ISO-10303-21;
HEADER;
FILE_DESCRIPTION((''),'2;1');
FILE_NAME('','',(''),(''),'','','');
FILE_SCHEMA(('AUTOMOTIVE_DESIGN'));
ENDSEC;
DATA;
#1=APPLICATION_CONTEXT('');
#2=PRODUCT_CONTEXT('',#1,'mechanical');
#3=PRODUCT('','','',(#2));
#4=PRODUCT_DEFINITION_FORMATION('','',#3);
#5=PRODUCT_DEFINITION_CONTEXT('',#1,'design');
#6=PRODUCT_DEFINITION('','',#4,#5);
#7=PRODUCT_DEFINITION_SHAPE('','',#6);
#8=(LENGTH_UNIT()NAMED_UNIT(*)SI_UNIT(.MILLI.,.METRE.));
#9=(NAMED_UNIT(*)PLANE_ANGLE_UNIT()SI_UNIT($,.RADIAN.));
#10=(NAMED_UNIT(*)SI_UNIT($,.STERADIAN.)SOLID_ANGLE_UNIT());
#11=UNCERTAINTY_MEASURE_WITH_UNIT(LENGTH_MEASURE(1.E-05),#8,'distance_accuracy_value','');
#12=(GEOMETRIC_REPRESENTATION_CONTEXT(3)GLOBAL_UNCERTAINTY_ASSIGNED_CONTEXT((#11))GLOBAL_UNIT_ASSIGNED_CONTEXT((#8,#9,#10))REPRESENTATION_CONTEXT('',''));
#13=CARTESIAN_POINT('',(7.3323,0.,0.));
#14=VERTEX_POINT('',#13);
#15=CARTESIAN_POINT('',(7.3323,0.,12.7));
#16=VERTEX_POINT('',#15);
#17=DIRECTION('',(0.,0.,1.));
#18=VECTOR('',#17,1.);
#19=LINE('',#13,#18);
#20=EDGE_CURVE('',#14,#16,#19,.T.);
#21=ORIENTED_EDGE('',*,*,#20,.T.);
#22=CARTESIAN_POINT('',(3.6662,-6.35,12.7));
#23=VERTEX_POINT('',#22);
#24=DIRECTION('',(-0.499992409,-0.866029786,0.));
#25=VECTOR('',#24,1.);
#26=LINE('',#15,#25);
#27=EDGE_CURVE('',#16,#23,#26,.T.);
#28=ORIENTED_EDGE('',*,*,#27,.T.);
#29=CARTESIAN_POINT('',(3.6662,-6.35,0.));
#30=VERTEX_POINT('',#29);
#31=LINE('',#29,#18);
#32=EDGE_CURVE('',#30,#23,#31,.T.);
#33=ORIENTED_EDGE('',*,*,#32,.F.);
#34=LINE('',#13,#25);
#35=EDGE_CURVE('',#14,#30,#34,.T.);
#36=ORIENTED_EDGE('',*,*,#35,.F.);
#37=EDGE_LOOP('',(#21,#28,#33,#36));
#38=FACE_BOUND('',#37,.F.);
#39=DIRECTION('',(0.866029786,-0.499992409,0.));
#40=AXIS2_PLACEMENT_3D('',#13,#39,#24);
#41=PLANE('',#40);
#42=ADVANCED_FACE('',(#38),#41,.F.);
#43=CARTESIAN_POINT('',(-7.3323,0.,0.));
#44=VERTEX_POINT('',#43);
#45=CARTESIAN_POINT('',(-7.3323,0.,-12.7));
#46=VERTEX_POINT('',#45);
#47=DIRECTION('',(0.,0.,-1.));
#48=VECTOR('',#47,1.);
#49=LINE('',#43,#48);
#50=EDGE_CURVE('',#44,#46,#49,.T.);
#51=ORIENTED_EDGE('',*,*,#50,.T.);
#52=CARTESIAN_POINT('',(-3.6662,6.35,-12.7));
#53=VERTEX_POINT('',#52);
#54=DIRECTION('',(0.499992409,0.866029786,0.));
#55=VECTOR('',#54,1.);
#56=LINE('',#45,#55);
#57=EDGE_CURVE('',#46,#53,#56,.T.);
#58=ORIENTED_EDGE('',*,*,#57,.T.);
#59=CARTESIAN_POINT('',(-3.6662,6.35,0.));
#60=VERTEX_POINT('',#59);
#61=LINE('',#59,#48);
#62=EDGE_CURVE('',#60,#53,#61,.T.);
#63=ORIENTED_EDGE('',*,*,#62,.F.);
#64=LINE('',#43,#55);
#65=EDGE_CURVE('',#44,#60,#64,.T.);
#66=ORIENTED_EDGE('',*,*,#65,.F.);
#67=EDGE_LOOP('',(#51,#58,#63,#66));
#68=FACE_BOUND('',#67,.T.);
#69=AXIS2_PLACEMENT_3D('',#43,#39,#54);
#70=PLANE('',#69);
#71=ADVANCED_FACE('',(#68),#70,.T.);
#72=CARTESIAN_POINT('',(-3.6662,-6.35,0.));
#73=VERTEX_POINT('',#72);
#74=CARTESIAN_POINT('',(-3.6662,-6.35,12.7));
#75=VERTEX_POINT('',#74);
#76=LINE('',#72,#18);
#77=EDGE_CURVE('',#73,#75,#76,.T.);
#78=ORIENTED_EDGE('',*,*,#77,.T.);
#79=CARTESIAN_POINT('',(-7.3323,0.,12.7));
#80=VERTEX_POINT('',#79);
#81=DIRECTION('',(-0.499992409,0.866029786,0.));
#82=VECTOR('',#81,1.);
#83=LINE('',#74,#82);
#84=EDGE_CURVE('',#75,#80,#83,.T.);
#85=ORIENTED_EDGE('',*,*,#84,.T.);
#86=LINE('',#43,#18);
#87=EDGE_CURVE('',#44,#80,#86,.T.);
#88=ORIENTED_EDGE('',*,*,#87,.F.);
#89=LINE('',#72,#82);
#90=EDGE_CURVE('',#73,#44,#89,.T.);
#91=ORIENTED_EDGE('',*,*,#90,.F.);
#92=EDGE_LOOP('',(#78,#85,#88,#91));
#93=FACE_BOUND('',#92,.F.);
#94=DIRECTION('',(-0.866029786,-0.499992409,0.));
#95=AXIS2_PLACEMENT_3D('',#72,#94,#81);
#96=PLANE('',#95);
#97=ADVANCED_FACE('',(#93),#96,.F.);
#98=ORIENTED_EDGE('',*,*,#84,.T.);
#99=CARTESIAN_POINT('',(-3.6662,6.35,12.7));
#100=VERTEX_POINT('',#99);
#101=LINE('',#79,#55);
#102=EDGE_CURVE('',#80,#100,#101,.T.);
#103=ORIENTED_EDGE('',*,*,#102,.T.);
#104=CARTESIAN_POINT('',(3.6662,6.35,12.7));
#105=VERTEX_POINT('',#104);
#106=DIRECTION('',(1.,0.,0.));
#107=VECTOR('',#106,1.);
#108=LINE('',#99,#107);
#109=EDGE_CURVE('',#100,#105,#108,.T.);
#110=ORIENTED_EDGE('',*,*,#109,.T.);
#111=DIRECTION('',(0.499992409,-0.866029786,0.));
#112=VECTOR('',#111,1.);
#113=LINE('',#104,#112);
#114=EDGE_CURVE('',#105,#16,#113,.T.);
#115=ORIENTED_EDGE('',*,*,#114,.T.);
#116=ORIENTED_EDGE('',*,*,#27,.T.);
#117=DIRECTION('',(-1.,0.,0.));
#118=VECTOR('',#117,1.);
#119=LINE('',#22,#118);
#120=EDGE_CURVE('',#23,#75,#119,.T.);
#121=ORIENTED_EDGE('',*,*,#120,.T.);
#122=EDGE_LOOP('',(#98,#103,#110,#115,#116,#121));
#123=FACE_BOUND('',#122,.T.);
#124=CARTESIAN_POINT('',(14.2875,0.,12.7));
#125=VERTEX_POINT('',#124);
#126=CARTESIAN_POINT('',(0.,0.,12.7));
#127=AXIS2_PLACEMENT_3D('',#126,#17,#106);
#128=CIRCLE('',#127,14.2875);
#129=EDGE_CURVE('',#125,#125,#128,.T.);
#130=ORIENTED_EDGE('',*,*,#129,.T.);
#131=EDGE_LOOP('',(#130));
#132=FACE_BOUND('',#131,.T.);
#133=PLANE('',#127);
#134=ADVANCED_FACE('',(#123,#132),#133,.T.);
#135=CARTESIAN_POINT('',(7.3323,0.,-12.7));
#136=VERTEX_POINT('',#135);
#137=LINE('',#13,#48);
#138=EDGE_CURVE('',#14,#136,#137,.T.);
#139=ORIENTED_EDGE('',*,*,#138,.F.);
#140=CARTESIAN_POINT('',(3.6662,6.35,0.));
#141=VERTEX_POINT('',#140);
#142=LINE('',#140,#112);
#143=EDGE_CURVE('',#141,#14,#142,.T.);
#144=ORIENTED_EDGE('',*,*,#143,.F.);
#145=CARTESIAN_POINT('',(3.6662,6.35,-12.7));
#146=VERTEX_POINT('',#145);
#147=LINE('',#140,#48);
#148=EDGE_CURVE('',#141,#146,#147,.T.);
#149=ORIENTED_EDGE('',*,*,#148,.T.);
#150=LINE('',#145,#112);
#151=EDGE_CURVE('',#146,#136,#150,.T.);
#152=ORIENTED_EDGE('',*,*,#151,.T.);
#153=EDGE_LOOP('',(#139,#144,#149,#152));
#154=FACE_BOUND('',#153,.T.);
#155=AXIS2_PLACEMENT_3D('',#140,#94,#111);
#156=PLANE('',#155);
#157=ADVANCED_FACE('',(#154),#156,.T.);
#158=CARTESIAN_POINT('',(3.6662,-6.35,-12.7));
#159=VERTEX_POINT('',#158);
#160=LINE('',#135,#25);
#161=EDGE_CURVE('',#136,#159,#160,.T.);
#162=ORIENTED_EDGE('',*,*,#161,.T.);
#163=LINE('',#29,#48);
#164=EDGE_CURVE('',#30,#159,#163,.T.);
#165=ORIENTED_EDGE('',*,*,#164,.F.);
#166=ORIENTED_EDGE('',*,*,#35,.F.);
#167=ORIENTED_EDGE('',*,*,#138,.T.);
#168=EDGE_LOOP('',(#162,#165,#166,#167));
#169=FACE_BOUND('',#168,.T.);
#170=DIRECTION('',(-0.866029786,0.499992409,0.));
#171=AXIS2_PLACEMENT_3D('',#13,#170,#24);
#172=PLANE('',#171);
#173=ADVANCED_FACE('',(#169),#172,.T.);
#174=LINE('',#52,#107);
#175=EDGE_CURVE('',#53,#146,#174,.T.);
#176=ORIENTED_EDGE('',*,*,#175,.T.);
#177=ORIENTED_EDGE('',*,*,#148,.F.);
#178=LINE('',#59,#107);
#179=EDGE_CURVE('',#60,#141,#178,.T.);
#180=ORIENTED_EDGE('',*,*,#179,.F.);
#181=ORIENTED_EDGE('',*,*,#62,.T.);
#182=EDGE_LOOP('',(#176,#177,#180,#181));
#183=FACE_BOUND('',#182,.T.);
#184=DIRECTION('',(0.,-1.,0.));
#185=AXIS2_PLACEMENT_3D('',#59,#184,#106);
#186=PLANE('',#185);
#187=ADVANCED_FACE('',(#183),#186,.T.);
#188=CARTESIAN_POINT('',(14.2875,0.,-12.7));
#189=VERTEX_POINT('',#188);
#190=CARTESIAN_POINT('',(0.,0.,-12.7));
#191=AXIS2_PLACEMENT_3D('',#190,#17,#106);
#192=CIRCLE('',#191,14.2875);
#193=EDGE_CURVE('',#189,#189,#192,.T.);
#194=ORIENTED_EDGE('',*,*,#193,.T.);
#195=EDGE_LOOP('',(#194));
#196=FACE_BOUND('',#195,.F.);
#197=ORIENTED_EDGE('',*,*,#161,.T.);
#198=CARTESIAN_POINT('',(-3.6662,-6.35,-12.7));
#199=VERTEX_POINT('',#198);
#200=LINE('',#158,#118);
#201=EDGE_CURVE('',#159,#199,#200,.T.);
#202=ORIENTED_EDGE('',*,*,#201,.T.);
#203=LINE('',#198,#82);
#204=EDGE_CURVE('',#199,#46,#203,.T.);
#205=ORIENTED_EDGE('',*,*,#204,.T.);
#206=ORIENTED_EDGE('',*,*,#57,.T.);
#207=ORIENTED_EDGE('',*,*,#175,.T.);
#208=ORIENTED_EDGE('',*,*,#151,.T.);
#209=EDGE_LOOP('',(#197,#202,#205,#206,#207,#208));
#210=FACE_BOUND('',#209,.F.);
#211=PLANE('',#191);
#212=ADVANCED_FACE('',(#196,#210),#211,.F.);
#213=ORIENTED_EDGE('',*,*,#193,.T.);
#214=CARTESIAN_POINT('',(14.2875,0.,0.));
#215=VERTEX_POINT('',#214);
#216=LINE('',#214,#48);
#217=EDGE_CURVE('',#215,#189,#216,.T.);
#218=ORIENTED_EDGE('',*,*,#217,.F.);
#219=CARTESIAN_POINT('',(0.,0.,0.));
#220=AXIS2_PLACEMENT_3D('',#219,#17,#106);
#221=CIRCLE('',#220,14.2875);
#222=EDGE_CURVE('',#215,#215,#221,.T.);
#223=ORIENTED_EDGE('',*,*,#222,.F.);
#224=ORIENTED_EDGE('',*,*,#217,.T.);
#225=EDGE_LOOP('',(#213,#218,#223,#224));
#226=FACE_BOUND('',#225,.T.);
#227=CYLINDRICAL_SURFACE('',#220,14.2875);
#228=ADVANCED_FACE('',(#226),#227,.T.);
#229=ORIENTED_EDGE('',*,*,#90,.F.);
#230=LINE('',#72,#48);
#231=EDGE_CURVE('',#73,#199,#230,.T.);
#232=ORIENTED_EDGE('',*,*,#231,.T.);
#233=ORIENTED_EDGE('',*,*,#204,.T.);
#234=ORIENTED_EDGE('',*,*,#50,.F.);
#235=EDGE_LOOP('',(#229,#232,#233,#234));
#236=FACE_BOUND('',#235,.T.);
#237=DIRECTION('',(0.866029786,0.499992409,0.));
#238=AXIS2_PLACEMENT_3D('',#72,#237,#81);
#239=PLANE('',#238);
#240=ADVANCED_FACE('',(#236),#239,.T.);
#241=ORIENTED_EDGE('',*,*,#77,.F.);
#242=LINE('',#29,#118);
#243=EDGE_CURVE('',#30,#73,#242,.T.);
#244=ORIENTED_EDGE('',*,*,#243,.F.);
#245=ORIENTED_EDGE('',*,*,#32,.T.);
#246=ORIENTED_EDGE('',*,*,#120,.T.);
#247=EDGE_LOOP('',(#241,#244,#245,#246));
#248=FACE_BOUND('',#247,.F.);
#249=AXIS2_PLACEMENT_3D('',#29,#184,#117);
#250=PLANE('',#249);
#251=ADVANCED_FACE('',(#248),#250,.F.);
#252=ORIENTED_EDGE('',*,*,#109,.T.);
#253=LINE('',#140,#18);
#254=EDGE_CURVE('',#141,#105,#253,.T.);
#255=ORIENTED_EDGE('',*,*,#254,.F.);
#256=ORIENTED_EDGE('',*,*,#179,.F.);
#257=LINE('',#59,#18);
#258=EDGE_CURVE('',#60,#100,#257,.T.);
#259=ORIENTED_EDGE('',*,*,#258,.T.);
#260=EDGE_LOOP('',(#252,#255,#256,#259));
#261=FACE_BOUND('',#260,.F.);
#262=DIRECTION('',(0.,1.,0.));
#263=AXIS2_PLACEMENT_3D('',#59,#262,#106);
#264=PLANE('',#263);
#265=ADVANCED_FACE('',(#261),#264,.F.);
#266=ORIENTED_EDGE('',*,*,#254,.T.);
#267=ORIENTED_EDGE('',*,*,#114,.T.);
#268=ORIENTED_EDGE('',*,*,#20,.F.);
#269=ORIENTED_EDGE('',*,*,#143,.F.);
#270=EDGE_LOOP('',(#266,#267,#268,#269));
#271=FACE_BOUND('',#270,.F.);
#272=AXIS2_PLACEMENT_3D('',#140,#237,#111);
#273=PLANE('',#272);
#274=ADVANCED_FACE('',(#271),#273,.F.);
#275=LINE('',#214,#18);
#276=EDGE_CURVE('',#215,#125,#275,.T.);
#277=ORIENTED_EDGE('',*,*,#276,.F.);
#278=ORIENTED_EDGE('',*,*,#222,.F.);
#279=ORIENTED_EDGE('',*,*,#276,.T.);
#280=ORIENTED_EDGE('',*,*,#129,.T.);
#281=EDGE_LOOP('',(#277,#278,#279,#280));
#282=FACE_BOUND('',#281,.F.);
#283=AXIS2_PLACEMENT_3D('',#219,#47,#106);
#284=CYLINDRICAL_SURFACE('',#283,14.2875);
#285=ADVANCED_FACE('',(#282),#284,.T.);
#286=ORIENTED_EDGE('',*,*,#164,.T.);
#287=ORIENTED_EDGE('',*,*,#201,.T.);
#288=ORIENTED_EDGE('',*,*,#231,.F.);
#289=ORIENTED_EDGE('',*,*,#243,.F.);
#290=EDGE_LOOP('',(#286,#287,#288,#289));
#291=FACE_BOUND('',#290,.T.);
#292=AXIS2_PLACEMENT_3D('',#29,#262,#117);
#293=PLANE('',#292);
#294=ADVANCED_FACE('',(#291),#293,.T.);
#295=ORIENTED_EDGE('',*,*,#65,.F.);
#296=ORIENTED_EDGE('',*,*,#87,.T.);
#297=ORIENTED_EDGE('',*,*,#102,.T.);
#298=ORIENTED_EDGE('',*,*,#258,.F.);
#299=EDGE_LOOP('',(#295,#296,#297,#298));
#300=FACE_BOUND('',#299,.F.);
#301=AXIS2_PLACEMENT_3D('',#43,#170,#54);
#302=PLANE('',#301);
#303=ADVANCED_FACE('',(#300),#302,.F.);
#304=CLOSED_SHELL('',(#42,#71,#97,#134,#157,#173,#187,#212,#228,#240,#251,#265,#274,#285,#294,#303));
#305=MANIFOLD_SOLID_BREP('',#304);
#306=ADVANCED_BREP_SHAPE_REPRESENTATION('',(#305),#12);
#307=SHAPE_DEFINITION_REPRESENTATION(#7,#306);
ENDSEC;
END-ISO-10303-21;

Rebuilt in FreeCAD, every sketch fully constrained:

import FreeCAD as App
import Part
import Sketcher
Q = App.Units.Quantity


def add_polygon(sketch, points):
    """Adds a closed chain of lines whose ends are joined by coincident constraints."""
    first, n = sketch.GeometryCount, len(points)
    for a, b in zip(points, points[1:] + points[:1]):
        sketch.addGeometry(Part.LineSegment(App.Vector(*a, 0), App.Vector(*b, 0)), False)
    for i in range(n):
        sketch.addConstraint(Sketcher.Constraint("Coincident", first + i, 2, first + (i + 1) % n, 1))

doc = App.newDocument("Part")
params = doc.addObject("Spreadsheet::Sheet", "Params")
for row, (alias, value) in enumerate([
    ("sketch1_diameter", "1.125 in"),
    ("pad1_length", "1 in"),
], start=1):
    params.set(f"A{row}", alias)
    params.set(f"B{row}", "=" + value)
    params.setAlias(f"B{row}", alias)

body = doc.addObject("PartDesign::Body", "Body")

# Sketch on XY plane
sketch1 = body.newObject("Sketcher::SketchObject", "Sketch")
sketch1.AttachmentSupport = (doc.getObject("XY_Plane"), [""])
sketch1.MapMode = "FlatFace"
sketch1.addGeometry(Part.Circle(App.Vector(0, 0, 0), App.Vector(0, 0, 1), 14), False)  # 0
add_polygon(sketch1, [(7, 0), (4, -6), (-4, -6), (-7, 0), (-4, 6), (4, 6)])  # lines 1-6
sketch1.addConstraint([
    Sketcher.Constraint("Horizontal", 2),
    Sketcher.Constraint("Horizontal", 5),
    Sketcher.Constraint("Coincident", 0, 3, -1, 1),
    Sketcher.Constraint("Symmetric", 1, 2, 4, 2, -1, 1),
    Sketcher.Constraint("Symmetric", 3, 2, 6, 2, -1, 1),
    Sketcher.Constraint("PointOnObject", 3, 2, -1),
    Sketcher.Constraint("Parallel", 3, 6),
    Sketcher.Constraint("Vertical", 2, 2, 4, 2),
    Sketcher.Constraint("Diameter", 0, Q("1.125 in")),
    Sketcher.Constraint("DistanceY", 2, 2, 4, 2, Q("0.5 in")),
    Sketcher.Constraint("Angle", 1, Q("-119.9995 deg")),
    Sketcher.Constraint("DistanceX", 3, 2, 1, 2, Q("0.433 in")),
])
sketch1.setExpression("Constraints[14]", "Params.sketch1_diameter")
pad1 = body.newObject("PartDesign::Pad", "Pad")
pad1.Profile = sketch1
pad1.setExpression("Length", "Params.pad1_length")
pad1.Midplane = True

doc.recompute()
